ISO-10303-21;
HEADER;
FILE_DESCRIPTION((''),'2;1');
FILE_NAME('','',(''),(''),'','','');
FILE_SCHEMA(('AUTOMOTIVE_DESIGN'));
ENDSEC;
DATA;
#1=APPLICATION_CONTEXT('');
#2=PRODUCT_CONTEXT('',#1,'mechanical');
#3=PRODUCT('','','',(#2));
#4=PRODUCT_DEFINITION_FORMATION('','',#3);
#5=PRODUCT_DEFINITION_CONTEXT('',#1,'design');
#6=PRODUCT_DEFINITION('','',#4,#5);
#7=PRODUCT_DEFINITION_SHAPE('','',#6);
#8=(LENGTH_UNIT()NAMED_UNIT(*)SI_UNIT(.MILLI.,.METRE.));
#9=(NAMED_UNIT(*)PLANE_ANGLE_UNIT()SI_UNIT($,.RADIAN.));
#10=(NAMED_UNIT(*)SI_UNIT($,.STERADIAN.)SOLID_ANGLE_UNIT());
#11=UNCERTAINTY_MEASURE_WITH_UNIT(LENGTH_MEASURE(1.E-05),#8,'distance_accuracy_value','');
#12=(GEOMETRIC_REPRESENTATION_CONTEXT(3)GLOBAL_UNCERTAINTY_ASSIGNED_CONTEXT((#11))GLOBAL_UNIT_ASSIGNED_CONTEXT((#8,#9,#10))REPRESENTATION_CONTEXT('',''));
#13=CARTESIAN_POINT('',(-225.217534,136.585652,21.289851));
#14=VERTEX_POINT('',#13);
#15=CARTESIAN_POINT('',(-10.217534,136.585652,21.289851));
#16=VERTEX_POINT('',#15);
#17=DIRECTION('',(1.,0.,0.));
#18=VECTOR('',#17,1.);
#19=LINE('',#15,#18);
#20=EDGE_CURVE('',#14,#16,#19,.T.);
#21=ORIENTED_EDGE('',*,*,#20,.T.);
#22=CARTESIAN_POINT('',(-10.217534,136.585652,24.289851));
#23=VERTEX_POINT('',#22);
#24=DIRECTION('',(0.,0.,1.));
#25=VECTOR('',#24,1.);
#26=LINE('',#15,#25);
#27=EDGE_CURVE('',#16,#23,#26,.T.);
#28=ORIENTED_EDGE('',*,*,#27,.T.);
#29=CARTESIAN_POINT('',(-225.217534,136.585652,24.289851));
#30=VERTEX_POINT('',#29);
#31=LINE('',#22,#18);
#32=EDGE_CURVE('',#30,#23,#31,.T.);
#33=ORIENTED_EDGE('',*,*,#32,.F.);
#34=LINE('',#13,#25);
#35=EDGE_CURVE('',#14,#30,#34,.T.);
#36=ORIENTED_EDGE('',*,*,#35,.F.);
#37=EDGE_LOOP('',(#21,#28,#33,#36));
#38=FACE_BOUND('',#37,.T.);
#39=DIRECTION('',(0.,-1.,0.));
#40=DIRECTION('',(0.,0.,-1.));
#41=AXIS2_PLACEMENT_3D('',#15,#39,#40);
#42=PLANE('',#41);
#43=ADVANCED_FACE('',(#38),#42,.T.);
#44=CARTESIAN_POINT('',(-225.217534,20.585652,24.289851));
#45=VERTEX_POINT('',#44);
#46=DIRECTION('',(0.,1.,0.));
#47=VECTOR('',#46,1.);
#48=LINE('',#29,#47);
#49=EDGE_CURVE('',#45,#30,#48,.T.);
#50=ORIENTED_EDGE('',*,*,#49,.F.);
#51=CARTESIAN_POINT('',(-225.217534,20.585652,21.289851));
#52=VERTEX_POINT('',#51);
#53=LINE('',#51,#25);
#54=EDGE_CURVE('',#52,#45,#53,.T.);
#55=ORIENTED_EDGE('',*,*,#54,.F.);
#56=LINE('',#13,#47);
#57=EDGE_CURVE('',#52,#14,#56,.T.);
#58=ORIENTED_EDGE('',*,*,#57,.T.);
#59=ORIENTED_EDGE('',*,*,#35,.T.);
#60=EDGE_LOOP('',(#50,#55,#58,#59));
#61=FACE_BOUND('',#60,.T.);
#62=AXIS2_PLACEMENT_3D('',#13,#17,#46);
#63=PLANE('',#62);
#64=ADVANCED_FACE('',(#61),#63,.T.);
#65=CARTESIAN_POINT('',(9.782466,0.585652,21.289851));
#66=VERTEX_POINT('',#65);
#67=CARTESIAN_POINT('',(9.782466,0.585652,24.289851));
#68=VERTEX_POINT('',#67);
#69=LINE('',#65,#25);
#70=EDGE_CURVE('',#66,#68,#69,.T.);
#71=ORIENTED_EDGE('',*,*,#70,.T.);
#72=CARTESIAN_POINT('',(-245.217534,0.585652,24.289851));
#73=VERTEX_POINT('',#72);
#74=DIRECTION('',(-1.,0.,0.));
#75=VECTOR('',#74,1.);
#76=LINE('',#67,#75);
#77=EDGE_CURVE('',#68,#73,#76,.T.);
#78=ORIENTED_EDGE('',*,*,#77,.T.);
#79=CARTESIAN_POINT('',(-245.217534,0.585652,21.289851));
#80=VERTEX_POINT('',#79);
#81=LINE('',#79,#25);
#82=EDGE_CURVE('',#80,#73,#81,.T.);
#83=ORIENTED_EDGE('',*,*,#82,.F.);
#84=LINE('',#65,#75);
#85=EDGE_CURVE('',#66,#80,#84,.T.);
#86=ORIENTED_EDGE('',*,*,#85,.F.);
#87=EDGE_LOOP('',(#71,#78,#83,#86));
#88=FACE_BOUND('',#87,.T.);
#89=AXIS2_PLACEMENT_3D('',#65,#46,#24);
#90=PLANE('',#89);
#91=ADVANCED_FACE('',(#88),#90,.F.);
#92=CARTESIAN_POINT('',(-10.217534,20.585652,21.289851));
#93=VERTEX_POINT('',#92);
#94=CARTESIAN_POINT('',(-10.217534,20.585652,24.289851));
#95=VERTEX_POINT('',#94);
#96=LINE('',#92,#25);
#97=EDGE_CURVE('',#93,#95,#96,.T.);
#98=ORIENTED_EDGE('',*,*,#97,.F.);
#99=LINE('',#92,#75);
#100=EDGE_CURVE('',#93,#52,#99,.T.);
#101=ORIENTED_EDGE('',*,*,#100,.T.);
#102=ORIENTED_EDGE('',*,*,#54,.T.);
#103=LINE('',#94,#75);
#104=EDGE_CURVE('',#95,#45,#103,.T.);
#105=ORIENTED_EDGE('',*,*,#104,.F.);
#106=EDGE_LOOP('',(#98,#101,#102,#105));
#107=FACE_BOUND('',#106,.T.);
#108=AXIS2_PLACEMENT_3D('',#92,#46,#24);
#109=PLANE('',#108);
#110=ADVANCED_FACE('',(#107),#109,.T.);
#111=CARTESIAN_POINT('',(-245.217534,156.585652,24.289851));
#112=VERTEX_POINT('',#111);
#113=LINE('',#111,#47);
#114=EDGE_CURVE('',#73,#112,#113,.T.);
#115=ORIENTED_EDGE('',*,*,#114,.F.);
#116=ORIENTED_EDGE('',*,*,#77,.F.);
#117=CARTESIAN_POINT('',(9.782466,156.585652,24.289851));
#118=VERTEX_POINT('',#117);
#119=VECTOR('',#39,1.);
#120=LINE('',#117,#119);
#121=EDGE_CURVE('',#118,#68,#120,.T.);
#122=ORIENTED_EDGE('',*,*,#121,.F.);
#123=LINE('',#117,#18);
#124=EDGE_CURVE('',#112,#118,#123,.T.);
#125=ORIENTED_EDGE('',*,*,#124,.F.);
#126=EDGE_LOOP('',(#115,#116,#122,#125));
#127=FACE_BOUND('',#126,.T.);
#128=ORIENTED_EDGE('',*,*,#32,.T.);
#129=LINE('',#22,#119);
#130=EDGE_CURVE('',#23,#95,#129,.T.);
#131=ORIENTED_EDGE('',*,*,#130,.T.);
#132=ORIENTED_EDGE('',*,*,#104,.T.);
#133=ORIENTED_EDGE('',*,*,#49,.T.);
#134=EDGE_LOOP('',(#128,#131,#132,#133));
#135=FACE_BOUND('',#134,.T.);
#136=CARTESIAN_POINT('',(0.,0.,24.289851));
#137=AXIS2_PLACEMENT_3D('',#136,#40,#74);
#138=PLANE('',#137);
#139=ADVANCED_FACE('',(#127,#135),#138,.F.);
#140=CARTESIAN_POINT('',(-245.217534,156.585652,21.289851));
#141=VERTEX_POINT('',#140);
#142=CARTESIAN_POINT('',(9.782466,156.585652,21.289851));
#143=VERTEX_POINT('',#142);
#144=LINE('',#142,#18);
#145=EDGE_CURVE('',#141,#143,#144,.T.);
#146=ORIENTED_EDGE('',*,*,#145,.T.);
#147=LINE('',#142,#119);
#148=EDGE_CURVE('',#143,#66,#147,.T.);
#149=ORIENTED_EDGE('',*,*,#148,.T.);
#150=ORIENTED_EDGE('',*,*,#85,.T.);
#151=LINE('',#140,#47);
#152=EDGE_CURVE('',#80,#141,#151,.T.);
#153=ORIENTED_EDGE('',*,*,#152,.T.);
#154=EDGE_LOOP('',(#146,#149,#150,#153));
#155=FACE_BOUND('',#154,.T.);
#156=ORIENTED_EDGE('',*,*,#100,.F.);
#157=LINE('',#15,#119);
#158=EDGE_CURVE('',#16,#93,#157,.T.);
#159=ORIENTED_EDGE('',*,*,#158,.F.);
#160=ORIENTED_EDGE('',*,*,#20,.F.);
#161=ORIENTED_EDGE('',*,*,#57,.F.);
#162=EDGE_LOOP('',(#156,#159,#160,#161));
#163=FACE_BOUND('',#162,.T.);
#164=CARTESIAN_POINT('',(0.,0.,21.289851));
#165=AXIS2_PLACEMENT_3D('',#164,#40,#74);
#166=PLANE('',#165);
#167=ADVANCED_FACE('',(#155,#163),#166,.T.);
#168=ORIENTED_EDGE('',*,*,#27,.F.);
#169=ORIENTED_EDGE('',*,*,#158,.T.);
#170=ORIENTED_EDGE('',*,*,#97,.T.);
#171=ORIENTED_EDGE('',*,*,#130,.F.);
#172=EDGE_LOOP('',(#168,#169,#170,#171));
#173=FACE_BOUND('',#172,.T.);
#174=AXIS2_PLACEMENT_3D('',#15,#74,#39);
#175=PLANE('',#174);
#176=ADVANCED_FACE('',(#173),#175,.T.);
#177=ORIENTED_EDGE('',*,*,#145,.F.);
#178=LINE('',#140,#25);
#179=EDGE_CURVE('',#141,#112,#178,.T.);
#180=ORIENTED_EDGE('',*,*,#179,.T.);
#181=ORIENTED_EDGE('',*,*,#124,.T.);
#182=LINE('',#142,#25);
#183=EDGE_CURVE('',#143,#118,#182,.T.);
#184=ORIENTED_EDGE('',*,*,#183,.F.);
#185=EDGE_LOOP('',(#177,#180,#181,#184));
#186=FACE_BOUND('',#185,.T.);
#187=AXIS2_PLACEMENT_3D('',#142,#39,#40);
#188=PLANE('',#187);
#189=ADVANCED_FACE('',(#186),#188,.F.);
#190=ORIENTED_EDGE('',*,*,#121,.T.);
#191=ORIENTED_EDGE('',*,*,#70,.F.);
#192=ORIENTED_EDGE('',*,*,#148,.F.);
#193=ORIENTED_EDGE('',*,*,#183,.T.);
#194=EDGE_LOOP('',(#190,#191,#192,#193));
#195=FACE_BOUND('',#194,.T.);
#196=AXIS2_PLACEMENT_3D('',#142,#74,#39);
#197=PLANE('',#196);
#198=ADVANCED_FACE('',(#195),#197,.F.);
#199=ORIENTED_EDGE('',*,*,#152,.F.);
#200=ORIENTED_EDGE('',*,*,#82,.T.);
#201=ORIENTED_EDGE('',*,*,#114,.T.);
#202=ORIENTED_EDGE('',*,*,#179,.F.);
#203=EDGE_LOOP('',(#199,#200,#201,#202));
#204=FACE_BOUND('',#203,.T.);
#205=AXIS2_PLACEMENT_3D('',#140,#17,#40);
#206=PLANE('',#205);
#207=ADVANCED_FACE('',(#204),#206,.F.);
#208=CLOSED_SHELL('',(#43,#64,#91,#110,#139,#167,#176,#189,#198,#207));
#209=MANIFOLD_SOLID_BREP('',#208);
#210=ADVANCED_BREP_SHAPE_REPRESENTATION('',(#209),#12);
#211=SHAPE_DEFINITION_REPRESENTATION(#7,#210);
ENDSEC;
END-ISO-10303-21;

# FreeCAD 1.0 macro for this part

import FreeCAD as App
import Part
import Sketcher
Q = App.Units.Quantity

doc = App.newDocument("Part")
body = doc.addObject("PartDesign::Body", "Body")

# Sketch on XY plane
sketch1 = body.newObject("Sketcher::SketchObject", "Sketch")
sketch1.AttachmentSupport = (doc.getObject("XY_Plane"), [""])
sketch1.MapMode = "FlatFace"
sketch1.AttachmentOffset = App.Placement(App.Vector(0, 0, 24.289851), App.Rotation())
sketch1.addGeometry([
    Part.LineSegment(App.Vector(10, 157, 0), App.Vector(10, 1, 0)),  # 0
    Part.LineSegment(App.Vector(10, 1, 0), App.Vector(-245, 1, 0)),  # 1
    Part.LineSegment(App.Vector(-245, 1, 0), App.Vector(-245, 157, 0)),  # 2
    Part.LineSegment(App.Vector(-245, 157, 0), App.Vector(10, 157, 0)),  # 3
    Part.LineSegment(App.Vector(-225, 21, 0), App.Vector(-10, 21, 0)),  # 4
    Part.LineSegment(App.Vector(-10, 21, 0), App.Vector(-10, 137, 0)),  # 5
    Part.LineSegment(App.Vector(-10, 137, 0), App.Vector(-225, 137, 0)),  # 6
    Part.LineSegment(App.Vector(-225, 137, 0), App.Vector(-225, 21, 0)),  # 7
], False)
sketch1.addConstraint([
    Sketcher.Constraint("Coincident", 0, 2, 1, 1),
    Sketcher.Constraint("Coincident", 1, 2, 2, 1),
    Sketcher.Constraint("Coincident", 2, 2, 3, 1),
    Sketcher.Constraint("Coincident", 3, 2, 0, 1),
    Sketcher.Constraint("Coincident", 4, 2, 5, 1),
    Sketcher.Constraint("Coincident", 5, 2, 6, 1),
    Sketcher.Constraint("Coincident", 6, 2, 7, 1),
    Sketcher.Constraint("Coincident", 7, 2, 4, 1),
    Sketcher.Constraint("Vertical", 0),
    Sketcher.Constraint("Horizontal", 1),
    Sketcher.Constraint("Vertical", 2),
    Sketcher.Constraint("Horizontal", 3),
    Sketcher.Constraint("Horizontal", 4),
    Sketcher.Constraint("Vertical", 5),
    Sketcher.Constraint("Horizontal", 6),
    Sketcher.Constraint("Vertical", 7),
    Sketcher.Constraint("DistanceX", 1, 2, 1, 1, Q("255 mm")),
    Sketcher.Constraint("DistanceX", 4, 1, 4, 2, Q("215 mm")),
    Sketcher.Constraint("DistanceY", 0, 2, 0, 1, Q("156 mm")),
    Sketcher.Constraint("DistanceY", 5, 1, 5, 2, Q("116 mm")),
    Sketcher.Constraint("DistanceX", 4, 2, 0, 2, Q("20 mm")),
    Sketcher.Constraint("DistanceY", 0, 2, 4, 2, Q("20 mm")),
    Sketcher.Constraint("DistanceY", -1, 1, 0, 2, Q("0.585652 mm")),
    Sketcher.Constraint("DistanceX", -1, 1, 0, 2, Q("9.782466 mm")),
])
pad1 = body.newObject("PartDesign::Pad", "Pad")
pad1.Profile = sketch1
pad1.Length = 3
pad1.Reversed = True

doc.recompute()
